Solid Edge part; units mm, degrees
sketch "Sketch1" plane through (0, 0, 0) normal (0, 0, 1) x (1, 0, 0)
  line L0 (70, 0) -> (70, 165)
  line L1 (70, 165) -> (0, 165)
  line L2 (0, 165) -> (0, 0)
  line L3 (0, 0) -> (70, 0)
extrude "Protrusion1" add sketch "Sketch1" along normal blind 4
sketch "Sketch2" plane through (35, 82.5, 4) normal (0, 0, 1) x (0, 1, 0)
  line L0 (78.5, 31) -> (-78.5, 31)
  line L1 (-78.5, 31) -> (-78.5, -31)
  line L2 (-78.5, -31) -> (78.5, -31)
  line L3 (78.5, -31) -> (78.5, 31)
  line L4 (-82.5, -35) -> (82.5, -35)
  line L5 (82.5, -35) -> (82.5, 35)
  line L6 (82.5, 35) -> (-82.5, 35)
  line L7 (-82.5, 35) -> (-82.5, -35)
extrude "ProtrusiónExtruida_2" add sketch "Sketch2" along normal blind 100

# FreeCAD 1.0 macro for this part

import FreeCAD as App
import Part
import Sketcher
from FreeCAD import Vector
Q = App.Units.Quantity


def add_polygon(sketch, points):
    """Adds a closed chain of lines whose ends are joined by coincident constraints."""
    first, n = sketch.GeometryCount, len(points)
    for a, b in zip(points, points[1:] + points[:1]):
        sketch.addGeometry(Part.LineSegment(App.Vector(*a, 0), App.Vector(*b, 0)), False)
    for i in range(n):
        sketch.addConstraint(Sketcher.Constraint("Coincident", first + i, 2, first + (i + 1) % n, 1))

doc = App.newDocument("Part")
body = doc.addObject("PartDesign::Body", "Body")

# Sketch on XY plane
sketch1 = body.newObject("Sketcher::SketchObject", "Sketch")
sketch1.AttachmentSupport = (doc.getObject("XY_Plane"), [""])
sketch1.MapMode = "FlatFace"
add_polygon(sketch1, [(0, 0), (70, 0), (70, 165), (0, 165)])  # lines 0-3
sketch1.addConstraint([
    Sketcher.Constraint("Horizontal", 0),
    Sketcher.Constraint("Vertical", 1),
    Sketcher.Constraint("Horizontal", 2),
    Sketcher.Constraint("Vertical", 3),
    Sketcher.Constraint("Coincident", 3, 2, -1, 1),
    Sketcher.Constraint("DistanceX", 0, 1, 0, 2, Q("70 mm")),
    Sketcher.Constraint("DistanceY", 1, 1, 1, 2, Q("165 mm")),
])
pad1 = body.newObject("PartDesign::Pad", "Pad")
pad1.Profile = sketch1
pad1.Length = 4

# Sketch on XY plane
sketch2 = body.newObject("Sketcher::SketchObject", "Sketch001")
sketch2.AttachmentSupport = (doc.getObject("XY_Plane"), [""])
sketch2.MapMode = "FlatFace"
sketch2.AttachmentOffset = App.Placement(Vector(0, 0, 4), App.Rotation())
add_polygon(sketch2, [(0, 0), (70, 0), (70, 165), (0, 165)])  # lines 0-3
add_polygon(sketch2, [(4, 4), (4, 161), (66, 161), (66, 4)])  # lines 4-7
sketch2.addConstraint([
    Sketcher.Constraint("Horizontal", 0),
    Sketcher.Constraint("Vertical", 1),
    Sketcher.Constraint("Horizontal", 2),
    Sketcher.Constraint("Vertical", 3),
    Sketcher.Constraint("Vertical", 4),
    Sketcher.Constraint("Horizontal", 5),
    Sketcher.Constraint("Vertical", 6),
    Sketcher.Constraint("Horizontal", 7),
    Sketcher.Constraint("Coincident", 3, 2, -1, 1),
    Sketcher.Constraint("DistanceX", 0, 1, 0, 2, Q("70 mm")),
    Sketcher.Constraint("DistanceX", 5, 1, 5, 2, Q("62 mm")),
    Sketcher.Constraint("DistanceY", 1, 1, 1, 2, Q("165 mm")),
    Sketcher.Constraint("DistanceY", 4, 1, 4, 2, Q("157 mm")),
    Sketcher.Constraint("DistanceX", -1, 1, 4, 2, Q("4 mm")),
    Sketcher.Constraint("DistanceY", -1, 1, 4, 2, Q("161 mm")),
])
pad2 = body.newObject("PartDesign::Pad", "Pad001")
pad2.Profile = sketch2
pad2.Length = 100

doc.recompute()
